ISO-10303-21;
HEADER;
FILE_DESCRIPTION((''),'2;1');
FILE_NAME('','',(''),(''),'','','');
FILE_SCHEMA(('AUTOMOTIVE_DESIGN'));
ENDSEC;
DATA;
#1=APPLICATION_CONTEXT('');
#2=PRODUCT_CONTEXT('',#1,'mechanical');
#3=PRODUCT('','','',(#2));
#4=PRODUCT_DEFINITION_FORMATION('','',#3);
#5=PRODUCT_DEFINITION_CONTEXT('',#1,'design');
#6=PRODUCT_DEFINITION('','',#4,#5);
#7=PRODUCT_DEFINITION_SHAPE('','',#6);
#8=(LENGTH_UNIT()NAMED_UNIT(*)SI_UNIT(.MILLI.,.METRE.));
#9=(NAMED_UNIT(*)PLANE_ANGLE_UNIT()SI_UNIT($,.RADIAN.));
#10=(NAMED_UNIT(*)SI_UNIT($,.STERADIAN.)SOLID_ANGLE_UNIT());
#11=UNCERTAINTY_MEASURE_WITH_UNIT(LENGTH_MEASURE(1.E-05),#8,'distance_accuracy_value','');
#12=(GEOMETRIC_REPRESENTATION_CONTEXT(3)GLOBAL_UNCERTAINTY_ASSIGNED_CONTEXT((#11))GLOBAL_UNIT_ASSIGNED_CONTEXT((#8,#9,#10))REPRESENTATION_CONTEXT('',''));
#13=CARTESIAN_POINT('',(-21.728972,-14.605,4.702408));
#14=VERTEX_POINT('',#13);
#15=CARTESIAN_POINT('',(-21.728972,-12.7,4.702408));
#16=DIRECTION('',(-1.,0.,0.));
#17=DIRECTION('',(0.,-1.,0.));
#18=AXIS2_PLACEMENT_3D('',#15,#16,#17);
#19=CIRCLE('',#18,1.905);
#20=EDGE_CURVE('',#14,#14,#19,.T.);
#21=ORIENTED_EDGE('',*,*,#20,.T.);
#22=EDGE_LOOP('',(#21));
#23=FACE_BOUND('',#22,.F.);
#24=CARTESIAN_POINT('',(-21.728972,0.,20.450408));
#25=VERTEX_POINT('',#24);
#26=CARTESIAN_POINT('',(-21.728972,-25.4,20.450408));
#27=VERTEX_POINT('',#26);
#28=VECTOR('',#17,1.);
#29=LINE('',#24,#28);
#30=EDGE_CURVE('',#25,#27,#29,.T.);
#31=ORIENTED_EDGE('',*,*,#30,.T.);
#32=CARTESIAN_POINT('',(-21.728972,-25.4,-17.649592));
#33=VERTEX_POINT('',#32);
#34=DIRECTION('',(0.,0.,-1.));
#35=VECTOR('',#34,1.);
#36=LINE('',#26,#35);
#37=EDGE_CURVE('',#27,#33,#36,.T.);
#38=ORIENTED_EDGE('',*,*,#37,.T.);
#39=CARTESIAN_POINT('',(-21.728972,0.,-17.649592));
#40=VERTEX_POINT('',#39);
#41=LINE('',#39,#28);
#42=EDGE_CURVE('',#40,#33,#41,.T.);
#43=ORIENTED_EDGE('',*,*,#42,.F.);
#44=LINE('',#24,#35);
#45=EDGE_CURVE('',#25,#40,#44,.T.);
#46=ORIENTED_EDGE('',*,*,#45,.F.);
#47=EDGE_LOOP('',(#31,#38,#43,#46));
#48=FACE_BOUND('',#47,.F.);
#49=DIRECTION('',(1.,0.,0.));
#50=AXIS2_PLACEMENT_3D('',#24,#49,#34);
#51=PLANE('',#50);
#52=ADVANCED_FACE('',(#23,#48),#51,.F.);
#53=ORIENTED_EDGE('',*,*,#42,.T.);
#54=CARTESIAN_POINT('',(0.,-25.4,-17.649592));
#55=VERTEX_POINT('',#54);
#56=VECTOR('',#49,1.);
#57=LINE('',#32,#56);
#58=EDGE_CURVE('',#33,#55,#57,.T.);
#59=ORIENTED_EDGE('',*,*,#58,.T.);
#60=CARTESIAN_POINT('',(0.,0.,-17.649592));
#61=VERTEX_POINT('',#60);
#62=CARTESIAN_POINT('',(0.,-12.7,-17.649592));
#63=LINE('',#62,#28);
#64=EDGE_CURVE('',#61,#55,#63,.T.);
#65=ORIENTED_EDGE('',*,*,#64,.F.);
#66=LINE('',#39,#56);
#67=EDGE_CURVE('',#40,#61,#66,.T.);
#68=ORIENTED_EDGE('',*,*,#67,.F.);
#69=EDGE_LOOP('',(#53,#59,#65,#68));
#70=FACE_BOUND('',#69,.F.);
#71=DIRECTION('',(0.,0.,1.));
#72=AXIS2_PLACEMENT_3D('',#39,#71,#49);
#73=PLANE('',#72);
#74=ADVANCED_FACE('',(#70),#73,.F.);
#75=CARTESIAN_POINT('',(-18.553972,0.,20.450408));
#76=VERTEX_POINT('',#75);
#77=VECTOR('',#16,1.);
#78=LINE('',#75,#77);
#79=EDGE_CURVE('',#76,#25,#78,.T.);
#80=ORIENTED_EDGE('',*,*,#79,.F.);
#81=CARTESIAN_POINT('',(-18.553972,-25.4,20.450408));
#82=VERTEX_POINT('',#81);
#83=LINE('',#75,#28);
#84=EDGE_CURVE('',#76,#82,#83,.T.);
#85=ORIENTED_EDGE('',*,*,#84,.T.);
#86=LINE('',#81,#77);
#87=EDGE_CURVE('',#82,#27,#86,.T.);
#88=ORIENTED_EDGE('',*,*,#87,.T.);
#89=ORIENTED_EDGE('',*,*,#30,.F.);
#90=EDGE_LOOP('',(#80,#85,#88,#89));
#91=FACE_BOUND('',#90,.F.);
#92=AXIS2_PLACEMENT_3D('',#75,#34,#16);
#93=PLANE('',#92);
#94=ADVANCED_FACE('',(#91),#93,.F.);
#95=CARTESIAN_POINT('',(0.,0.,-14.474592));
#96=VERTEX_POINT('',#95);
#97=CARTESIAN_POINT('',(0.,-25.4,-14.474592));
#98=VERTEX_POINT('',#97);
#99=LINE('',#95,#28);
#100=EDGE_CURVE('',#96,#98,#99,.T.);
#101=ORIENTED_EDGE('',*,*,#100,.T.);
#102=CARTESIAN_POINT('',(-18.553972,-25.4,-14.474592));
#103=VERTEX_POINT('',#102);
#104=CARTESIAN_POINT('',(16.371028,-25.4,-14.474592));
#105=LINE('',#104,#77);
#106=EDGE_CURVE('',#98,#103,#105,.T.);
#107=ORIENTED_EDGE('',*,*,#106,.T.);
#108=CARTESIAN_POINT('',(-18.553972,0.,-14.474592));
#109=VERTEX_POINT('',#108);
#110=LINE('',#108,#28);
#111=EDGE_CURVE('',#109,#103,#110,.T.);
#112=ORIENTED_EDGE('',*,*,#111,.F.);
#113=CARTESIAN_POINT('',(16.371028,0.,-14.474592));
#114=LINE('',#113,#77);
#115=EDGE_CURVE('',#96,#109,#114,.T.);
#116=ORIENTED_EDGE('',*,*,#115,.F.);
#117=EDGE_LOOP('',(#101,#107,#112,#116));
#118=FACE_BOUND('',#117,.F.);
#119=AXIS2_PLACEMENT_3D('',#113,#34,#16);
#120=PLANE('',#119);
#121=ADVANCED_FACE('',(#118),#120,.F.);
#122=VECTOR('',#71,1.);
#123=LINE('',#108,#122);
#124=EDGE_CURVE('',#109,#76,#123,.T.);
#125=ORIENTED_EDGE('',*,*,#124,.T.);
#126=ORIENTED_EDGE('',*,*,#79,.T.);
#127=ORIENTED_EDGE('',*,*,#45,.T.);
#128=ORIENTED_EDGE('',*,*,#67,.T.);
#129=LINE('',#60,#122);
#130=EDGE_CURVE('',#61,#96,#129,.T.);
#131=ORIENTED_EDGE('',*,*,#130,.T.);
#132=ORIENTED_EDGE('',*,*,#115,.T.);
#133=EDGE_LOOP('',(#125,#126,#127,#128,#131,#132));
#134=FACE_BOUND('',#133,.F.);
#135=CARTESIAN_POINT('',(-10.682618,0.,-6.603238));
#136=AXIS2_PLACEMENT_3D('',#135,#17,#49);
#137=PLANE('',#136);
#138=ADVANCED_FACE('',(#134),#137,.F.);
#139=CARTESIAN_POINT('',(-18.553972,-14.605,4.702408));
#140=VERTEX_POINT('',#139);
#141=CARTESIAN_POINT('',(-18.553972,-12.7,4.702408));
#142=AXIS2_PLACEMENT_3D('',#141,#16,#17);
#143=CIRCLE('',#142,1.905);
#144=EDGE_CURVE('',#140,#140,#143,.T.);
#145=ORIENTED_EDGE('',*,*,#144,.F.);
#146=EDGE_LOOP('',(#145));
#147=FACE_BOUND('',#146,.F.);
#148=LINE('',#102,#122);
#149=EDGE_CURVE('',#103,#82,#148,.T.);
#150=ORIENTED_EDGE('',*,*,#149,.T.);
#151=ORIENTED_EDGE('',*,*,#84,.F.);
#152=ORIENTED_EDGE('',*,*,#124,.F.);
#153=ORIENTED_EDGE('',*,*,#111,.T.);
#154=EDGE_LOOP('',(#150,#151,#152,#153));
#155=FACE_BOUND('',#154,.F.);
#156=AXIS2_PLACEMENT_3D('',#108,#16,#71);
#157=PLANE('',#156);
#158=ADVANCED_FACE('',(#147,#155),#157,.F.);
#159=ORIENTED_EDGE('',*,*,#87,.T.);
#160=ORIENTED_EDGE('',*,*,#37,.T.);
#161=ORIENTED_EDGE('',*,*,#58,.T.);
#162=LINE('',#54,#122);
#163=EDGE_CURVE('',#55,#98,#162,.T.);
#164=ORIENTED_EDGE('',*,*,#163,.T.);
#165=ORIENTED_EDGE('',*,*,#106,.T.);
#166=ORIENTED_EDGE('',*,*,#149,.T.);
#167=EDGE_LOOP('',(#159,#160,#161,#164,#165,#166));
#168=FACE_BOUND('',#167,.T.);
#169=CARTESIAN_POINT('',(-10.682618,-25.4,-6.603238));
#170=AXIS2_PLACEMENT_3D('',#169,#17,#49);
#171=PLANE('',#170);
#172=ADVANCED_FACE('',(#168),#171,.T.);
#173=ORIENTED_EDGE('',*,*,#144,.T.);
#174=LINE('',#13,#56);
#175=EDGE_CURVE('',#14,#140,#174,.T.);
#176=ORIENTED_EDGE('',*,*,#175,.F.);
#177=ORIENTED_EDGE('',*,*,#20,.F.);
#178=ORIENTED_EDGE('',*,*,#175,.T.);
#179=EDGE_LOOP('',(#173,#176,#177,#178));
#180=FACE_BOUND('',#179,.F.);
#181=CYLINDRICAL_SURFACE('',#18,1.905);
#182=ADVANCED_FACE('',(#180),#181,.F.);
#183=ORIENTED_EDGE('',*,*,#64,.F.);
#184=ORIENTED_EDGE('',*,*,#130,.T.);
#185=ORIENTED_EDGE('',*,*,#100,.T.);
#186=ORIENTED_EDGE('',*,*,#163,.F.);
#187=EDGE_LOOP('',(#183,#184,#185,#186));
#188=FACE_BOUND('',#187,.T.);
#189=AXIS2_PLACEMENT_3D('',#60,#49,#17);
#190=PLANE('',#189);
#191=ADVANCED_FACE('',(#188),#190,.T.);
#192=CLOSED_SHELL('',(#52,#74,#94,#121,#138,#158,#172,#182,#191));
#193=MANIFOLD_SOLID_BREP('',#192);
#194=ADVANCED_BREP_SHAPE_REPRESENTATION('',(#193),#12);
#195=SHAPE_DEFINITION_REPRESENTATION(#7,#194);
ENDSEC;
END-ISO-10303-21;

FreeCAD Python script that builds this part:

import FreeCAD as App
import Part
import Sketcher
Q = App.Units.Quantity


def add_polygon(sketch, points):
    """Adds a closed chain of lines whose ends are joined by coincident constraints."""
    first, n = sketch.GeometryCount, len(points)
    for a, b in zip(points, points[1:] + points[:1]):
        sketch.addGeometry(Part.LineSegment(App.Vector(*a, 0), App.Vector(*b, 0)), False)
    for i in range(n):
        sketch.addConstraint(Sketcher.Constraint("Coincident", first + i, 2, first + (i + 1) % n, 1))

doc = App.newDocument("Part")
body = doc.addObject("PartDesign::Body", "Body")

sketch1 = doc.addObject("Sketcher::SketchObject", "Sketch")
body.addObject(sketch1)
sketch1.AttachmentSupport = (doc.XZ_Plane, [""])
sketch1.MapMode = "FlatFace"
add_polygon(sketch1, [(-18.6, 20.5), (-21.7, 20.5), (-21.7, -17.6), (16.4, -17.6), (16.4, -14.5), (-18.6, -14.5)])
sketch1.addConstraint([
    Sketcher.Constraint("Horizontal", 0),
    Sketcher.Constraint("Vertical", 1),
    Sketcher.Constraint("Horizontal", 2),
    Sketcher.Constraint("Vertical", 3),
    Sketcher.Constraint("Horizontal", 4),
    Sketcher.Constraint("Vertical", 5),
    Sketcher.Constraint("Equal", 2, 1),
    Sketcher.Constraint("Equal", 0, 3),
    Sketcher.Constraint("DistanceX", 2, 1, 2, 2, Q("1.5 in")),
    Sketcher.Constraint("DistanceX", 0, 2, 0, 1, Q("0.125 in")),
    Sketcher.Constraint("DistanceX", 0, 2, -1, 1, Q("21.728972 mm")),
    Sketcher.Constraint("DistanceY", 1, 2, -1, 1, Q("17.649592 mm")),
])
pad1 = doc.addObject("PartDesign::Pad", "Pad")
body.addObject(pad1)
pad1.Profile = sketch1
pad1.Length = Q("1 in")

sketch2 = doc.addObject("Sketcher::SketchObject", "Sketch001")
body.addObject(sketch2)
sketch2.AttachmentSupport = (doc.XY_Plane, [""])
sketch2.MapMode = "FlatFace"
sketch2.AttachmentOffset = App.Placement(App.Vector(0, 0, -17.649592), App.Rotation())
add_polygon(sketch2, [(0, -25), (0, 0), (16, 0), (16, -25)])
sketch2.addConstraint([
    Sketcher.Constraint("Vertical", 0),
    Sketcher.Constraint("Horizontal", 1),
    Sketcher.Constraint("Vertical", 2),
    Sketcher.Constraint("Horizontal", 3),
    Sketcher.Constraint("Coincident", 0, 2, -1, 1),
    Sketcher.Constraint("DistanceY", 0, 1, 0, 2, Q("1 in")),
    Sketcher.Constraint("DistanceX", 1, 1, 1, 2, Q("16.371028 mm")),
])
pocket1 = doc.addObject("PartDesign::Pocket", "Pocket")
body.addObject(pocket1)
pocket1.Profile = sketch2
pocket1.Length = Q("1 in")
pocket1.Reversed = True

sketch3 = doc.addObject("Sketcher::SketchObject", "Sketch002")
body.addObject(sketch3)
sketch3.AttachmentSupport = (doc.YZ_Plane, [""])
sketch3.MapMode = "FlatFace"
sketch3.AttachmentOffset = App.Placement(App.Vector(0, 0, -21.728972), App.Rotation())
sketch3.addGeometry(Part.Circle(App.Vector(-12.7, 4.7, 0), App.Vector(0, 0, 1), 1.9), False)
sketch3.addConstraint([
    Sketcher.Constraint("Diameter", 0, Q("0.15 in")),
    Sketcher.Constraint("DistanceX", 0, 3, -1, 1, Q("0.5 in")),
    Sketcher.Constraint("DistanceY", -1, 1, 0, 3, Q("4.702408 mm")),
])
pocket2 = doc.addObject("PartDesign::Pocket", "Pocket001")
body.addObject(pocket2)
pocket2.Profile = sketch3
pocket2.Length = Q("1 in")
pocket2.Reversed = True

doc.recompute()
